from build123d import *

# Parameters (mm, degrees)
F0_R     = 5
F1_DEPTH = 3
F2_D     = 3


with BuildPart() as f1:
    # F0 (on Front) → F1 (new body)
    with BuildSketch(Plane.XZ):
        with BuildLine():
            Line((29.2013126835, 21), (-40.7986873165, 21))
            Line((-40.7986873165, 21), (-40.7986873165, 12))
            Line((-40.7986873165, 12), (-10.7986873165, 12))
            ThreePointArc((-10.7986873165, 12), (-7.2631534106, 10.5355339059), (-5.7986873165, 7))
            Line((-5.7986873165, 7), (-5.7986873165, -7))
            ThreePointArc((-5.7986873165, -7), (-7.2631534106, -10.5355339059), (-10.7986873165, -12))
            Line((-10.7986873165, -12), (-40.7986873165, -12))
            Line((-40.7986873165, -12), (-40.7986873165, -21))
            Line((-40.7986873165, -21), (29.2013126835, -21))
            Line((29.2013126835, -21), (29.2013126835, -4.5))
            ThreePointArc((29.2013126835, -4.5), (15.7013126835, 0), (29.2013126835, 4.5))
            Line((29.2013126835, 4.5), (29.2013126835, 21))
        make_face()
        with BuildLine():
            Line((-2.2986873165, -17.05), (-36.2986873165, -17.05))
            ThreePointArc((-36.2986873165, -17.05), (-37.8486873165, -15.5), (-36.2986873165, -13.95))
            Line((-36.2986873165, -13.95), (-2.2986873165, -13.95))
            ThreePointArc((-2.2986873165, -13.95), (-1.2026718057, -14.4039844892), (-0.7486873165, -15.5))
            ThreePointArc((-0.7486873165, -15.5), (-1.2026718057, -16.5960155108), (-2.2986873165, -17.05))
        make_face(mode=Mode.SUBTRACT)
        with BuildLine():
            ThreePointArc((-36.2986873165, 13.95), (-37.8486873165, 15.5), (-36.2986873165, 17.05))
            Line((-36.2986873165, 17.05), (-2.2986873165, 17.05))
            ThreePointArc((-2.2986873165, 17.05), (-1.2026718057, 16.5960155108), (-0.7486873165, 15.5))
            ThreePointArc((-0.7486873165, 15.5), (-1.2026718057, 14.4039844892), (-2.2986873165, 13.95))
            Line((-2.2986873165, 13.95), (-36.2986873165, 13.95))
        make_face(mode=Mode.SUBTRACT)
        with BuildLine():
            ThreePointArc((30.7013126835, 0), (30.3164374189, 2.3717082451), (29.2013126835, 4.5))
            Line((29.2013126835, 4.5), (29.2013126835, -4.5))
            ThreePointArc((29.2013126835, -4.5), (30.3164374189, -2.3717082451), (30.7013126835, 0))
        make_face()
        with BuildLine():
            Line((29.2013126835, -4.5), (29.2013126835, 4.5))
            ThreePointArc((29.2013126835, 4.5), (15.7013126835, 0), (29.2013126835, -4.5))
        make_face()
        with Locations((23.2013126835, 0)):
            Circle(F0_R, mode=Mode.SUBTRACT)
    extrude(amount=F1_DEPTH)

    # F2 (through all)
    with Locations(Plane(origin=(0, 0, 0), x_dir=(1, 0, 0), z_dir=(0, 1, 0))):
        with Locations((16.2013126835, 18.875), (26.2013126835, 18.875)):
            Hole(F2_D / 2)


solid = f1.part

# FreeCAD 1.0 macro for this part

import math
import FreeCAD as App
import Part
import Sketcher

doc = App.newDocument("Part")
params = doc.addObject("Spreadsheet::Sheet", "Params")
for row, (alias, value) in enumerate([
    ("sketch1_diameter", "10 mm"),
    ("sketch1_radius", "7.5 mm"),
    ("sketch1_width", "70 mm"),
    ("sketch1_width2", "30 mm"),
    ("sketch1_width3", "34 mm"),
    ("pad1_length", "3 mm"),
    ("sketch2_diameter", "3 mm"),
    ("hole_diameter", "3 mm"),
], start=1):
    params.set(f"A{row}", alias)
    params.set(f"B{row}", "=" + value)
    params.setAlias(f"B{row}", alias)

body = doc.addObject("PartDesign::Body", "Body")

sketch1 = body.newObject("Sketcher::SketchObject", "Sketch")
sketch1.AttachmentSupport = (doc.getObject("XZ_Plane"), [""])
sketch1.MapMode = "FlatFace"
sketch1.addGeometry(Part.LineSegment(App.Vector(29.201313, 21, 0), App.Vector(-40.798687, 21, 0)), False)
sketch1.addGeometry(Part.LineSegment(App.Vector(-40.798687, 21, 0), App.Vector(-40.798687, 12, 0)), False)
sketch1.addGeometry(Part.LineSegment(App.Vector(-40.798687, 12, 0), App.Vector(-10.798687, 12, 0)), False)
sketch1.addGeometry(Part.ArcOfCircle(Part.Circle(App.Vector(-10.798687, 7, 0), App.Vector(0, 0, 1), 5), math.radians(0), math.radians(90)), False)
sketch1.addGeometry(Part.LineSegment(App.Vector(-5.798687, 7, 0), App.Vector(-5.798687, -7, 0)), False)
sketch1.addGeometry(Part.ArcOfCircle(Part.Circle(App.Vector(-10.798687, -7, 0), App.Vector(0, 0, 1), 5), math.radians(-90), math.radians(0)), False)
sketch1.addGeometry(Part.LineSegment(App.Vector(-10.798687, -12, 0), App.Vector(-40.798687, -12, 0)), False)
sketch1.addGeometry(Part.LineSegment(App.Vector(-40.798687, -12, 0), App.Vector(-40.798687, -21, 0)), False)
sketch1.addGeometry(Part.LineSegment(App.Vector(-40.798687, -21, 0), App.Vector(29.201313, -21, 0)), False)
sketch1.addGeometry(Part.LineSegment(App.Vector(29.201313, -21, 0), App.Vector(29.201313, -4.5, 0)), False)
sketch1.addGeometry(Part.ArcOfCircle(Part.Circle(App.Vector(23.201313, 0, 0), App.Vector(0, 0, 1), 7.5), math.radians(-36.869898), math.radians(0)), False)
sketch1.addGeometry(Part.ArcOfCircle(Part.Circle(App.Vector(23.201313, 0, 0), App.Vector(0, 0, 1), 7.5), math.radians(0), math.radians(36.869898)), False)
sketch1.addGeometry(Part.LineSegment(App.Vector(29.201313, 4.5, 0), App.Vector(29.201313, 21, 0)), False)
sketch1.addGeometry(Part.ArcOfCircle(Part.Circle(App.Vector(-2.298687, -15.5, 0), App.Vector(0, 0, 1), 1.55), math.radians(-90), math.radians(0)), False)
sketch1.addGeometry(Part.LineSegment(App.Vector(-2.298687, -17.05, 0), App.Vector(-36.298687, -17.05, 0)), False)
sketch1.addGeometry(Part.ArcOfCircle(Part.Circle(App.Vector(-36.298687, -15.5, 0), App.Vector(0, 0, 1), 1.55), math.radians(90), math.radians(270)), False)
sketch1.addGeometry(Part.LineSegment(App.Vector(-36.298687, -13.95, 0), App.Vector(-2.298687, -13.95, 0)), False)
sketch1.addGeometry(Part.ArcOfCircle(Part.Circle(App.Vector(-2.298687, -15.5, 0), App.Vector(0, 0, 1), 1.55), math.radians(0), math.radians(90)), False)
sketch1.addGeometry(Part.LineSegment(App.Vector(-2.298687, 13.95, 0), App.Vector(-36.298687, 13.95, 0)), False)
sketch1.addGeometry(Part.ArcOfCircle(Part.Circle(App.Vector(-36.298687, 15.5, 0), App.Vector(0, 0, 1), 1.55), math.radians(90), math.radians(270)), False)
sketch1.addGeometry(Part.LineSegment(App.Vector(-36.298687, 17.05, 0), App.Vector(-2.298687, 17.05, 0)), False)
sketch1.addGeometry(Part.ArcOfCircle(Part.Circle(App.Vector(-2.298687, 15.5, 0), App.Vector(0, 0, 1), 1.55), math.radians(0), math.radians(90)), False)
sketch1.addGeometry(Part.ArcOfCircle(Part.Circle(App.Vector(-2.298687, 15.5, 0), App.Vector(0, 0, 1), 1.55), math.radians(-90), math.radians(0)), False)
sketch1.addGeometry(Part.Circle(App.Vector(23.201313, 0, 0), App.Vector(0, 0, 1), 5), False)
sketch1.addConstraint(Sketcher.Constraint("Coincident", 0, 2, 1, 1))
sketch1.addConstraint(Sketcher.Constraint("Coincident", 1, 2, 2, 1))
sketch1.addConstraint(Sketcher.Constraint("Tangent", 2, 2, 3, 2))
sketch1.addConstraint(Sketcher.Constraint("Tangent", 3, 1, 4, 1))
sketch1.addConstraint(Sketcher.Constraint("Tangent", 4, 2, 5, 2))
sketch1.addConstraint(Sketcher.Constraint("Tangent", 5, 1, 6, 1))
sketch1.addConstraint(Sketcher.Constraint("Coincident", 6, 2, 7, 1))
sketch1.addConstraint(Sketcher.Constraint("Coincident", 7, 2, 8, 1))
sketch1.addConstraint(Sketcher.Constraint("Coincident", 8, 2, 9, 1))
sketch1.addConstraint(Sketcher.Constraint("Coincident", 9, 2, 10, 1))
sketch1.addConstraint(Sketcher.Constraint("Tangent", 10, 2, 11, 1))
sketch1.addConstraint(Sketcher.Constraint("Coincident", 11, 2, 12, 1))
sketch1.addConstraint(Sketcher.Constraint("Coincident", 12, 2, 0, 1))
sketch1.addConstraint(Sketcher.Constraint("Tangent", 13, 1, 14, 1))
sketch1.addConstraint(Sketcher.Constraint("Tangent", 14, 2, 15, 2))
sketch1.addConstraint(Sketcher.Constraint("Tangent", 15, 1, 16, 1))
sketch1.addConstraint(Sketcher.Constraint("Tangent", 16, 2, 17, 2))
sketch1.addConstraint(Sketcher.Constraint("Tangent", 17, 1, 13, 2))
sketch1.addConstraint(Sketcher.Constraint("Tangent", 18, 2, 19, 2))
sketch1.addConstraint(Sketcher.Constraint("Tangent", 19, 1, 20, 1))
sketch1.addConstraint(Sketcher.Constraint("Tangent", 20, 2, 21, 2))
sketch1.addConstraint(Sketcher.Constraint("Tangent", 21, 1, 22, 2))
sketch1.addConstraint(Sketcher.Constraint("Tangent", 22, 1, 18, 1))
sketch1.addConstraint(Sketcher.Constraint("Horizontal", 0))
sketch1.addConstraint(Sketcher.Constraint("Vertical", 1))
sketch1.addConstraint(Sketcher.Constraint("Horizontal", 2))
sketch1.addConstraint(Sketcher.Constraint("Vertical", 4))
sketch1.addConstraint(Sketcher.Constraint("Horizontal", 6))
sketch1.addConstraint(Sketcher.Constraint("Vertical", 7))
sketch1.addConstraint(Sketcher.Constraint("Horizontal", 8))
sketch1.addConstraint(Sketcher.Constraint("Vertical", 9))
sketch1.addConstraint(Sketcher.Constraint("Vertical", 12))
sketch1.addConstraint(Sketcher.Constraint("Horizontal", 14))
sketch1.addConstraint(Sketcher.Constraint("Horizontal", 16))
sketch1.addConstraint(Sketcher.Constraint("Horizontal", 18))
sketch1.addConstraint(Sketcher.Constraint("Horizontal", 20))
sketch1.addConstraint(Sketcher.Constraint("Coincident", 23, 3, 10, 3))
sketch1.addConstraint(Sketcher.Constraint("Equal", 3, 5))
sketch1.addConstraint(Sketcher.Constraint("Equal", 10, 11))
sketch1.addConstraint(Sketcher.Constraint("Equal", 13, 15))
sketch1.addConstraint(Sketcher.Constraint("Equal", 17, 19))
sketch1.addConstraint(Sketcher.Constraint("Equal", 19, 21))
sketch1.addConstraint(Sketcher.Constraint("Equal", 5, 23))
sketch1.addConstraint(Sketcher.Constraint("Symmetric", 15, 3, 19, 3, -1))
sketch1.addConstraint(Sketcher.Constraint("Symmetric", 1, 2, 6, 2, -1))
sketch1.addConstraint(Sketcher.Constraint("Symmetric", 9, 2, 11, 2, -1))
sketch1.addConstraint(Sketcher.Constraint("Symmetric", 17, 1, 21, 1, -1))
sketch1.addConstraint(Sketcher.Constraint("PointOnObject", 10, 2, -1))
sketch1.addConstraint(Sketcher.Constraint("Horizontal", 15, 3, 17, 1))
sketch1.addConstraint(Sketcher.Constraint("Equal", 1, 7))
sketch1.addConstraint(Sketcher.Constraint("Diameter", 23, 10.0))
sketch1.addConstraint(Sketcher.Constraint("Radius", 10, 7.5))
sketch1.addConstraint(Sketcher.Constraint("DistanceX", 0, 2, 0, 1, 70.0))
sketch1.addConstraint(Sketcher.Constraint("DistanceX", 2, 1, 2, 2, 30.0))
sketch1.addConstraint(Sketcher.Constraint("DistanceX", 14, 2, 14, 1, 34.0))
sketch1.addConstraint(Sketcher.Constraint("DistanceY", 1, 2, 1, 1, 9.0))
sketch1.addConstraint(Sketcher.Constraint("DistanceY", 4, 2, 4, 1, 14.0))
sketch1.addConstraint(Sketcher.Constraint("Radius", 13, 1.55))
sketch1.addConstraint(Sketcher.Constraint("DistanceY", 9, 1, 9, 2, 16.5))
sketch1.addConstraint(Sketcher.Constraint("DistanceY", 15, 3, 19, 3, 31.0))
sketch1.addConstraint(Sketcher.Constraint("DistanceX", 5, 3, 13, 3, 8.5))
sketch1.addConstraint(Sketcher.Constraint("DistanceX", 3, 3, -1, 1, 10.798687))
sketch1.setExpression("Constraints[50]", "Params.sketch1_diameter")
sketch1.setExpression("Constraints[51]", "Params.sketch1_radius")
sketch1.setExpression("Constraints[52]", "Params.sketch1_width")
sketch1.setExpression("Constraints[53]", "Params.sketch1_width2")
sketch1.setExpression("Constraints[54]", "Params.sketch1_width3")
pad1 = body.newObject("PartDesign::Pad", "Pad")
pad1.Profile = sketch1
pad1.setExpression("Length", "Params.pad1_length")

sketch2 = body.newObject("Sketcher::SketchObject", "Sketch001")
sketch2.AttachmentSupport = (doc.getObject("XZ_Plane"), [""])
sketch2.MapMode = "FlatFace"
sketch2.addGeometry(Part.Circle(App.Vector(16.201313, -18.875, 0), App.Vector(0, 0, 1), 1.5), False)
sketch2.addGeometry(Part.Circle(App.Vector(26.201313, -18.875, 0), App.Vector(0, 0, 1), 1.5), False)
sketch2.addConstraint(Sketcher.Constraint("Equal", 0, 1))
sketch2.addConstraint(Sketcher.Constraint("Horizontal", 0, 3, 1, 3))
sketch2.addConstraint(Sketcher.Constraint("Diameter", 0, 3.0))
sketch2.addConstraint(Sketcher.Constraint("DistanceX", 0, 3, 1, 3, 10.0))
sketch2.addConstraint(Sketcher.Constraint("DistanceY", 0, 3, -1, 1, 18.875))
sketch2.addConstraint(Sketcher.Constraint("DistanceX", -1, 1, 0, 3, 16.201313))
sketch2.setExpression("Constraints[2]", "Params.sketch2_diameter")
doc.recompute()
hole = body.newObject("PartDesign::Hole", "Hole")
hole.Profile = sketch2
hole.ThreadType = "None"
hole.setExpression("Diameter", "Params.hole_diameter")
hole.DepthType = "ThroughAll"
hole.Reversed = True

doc.recompute()
